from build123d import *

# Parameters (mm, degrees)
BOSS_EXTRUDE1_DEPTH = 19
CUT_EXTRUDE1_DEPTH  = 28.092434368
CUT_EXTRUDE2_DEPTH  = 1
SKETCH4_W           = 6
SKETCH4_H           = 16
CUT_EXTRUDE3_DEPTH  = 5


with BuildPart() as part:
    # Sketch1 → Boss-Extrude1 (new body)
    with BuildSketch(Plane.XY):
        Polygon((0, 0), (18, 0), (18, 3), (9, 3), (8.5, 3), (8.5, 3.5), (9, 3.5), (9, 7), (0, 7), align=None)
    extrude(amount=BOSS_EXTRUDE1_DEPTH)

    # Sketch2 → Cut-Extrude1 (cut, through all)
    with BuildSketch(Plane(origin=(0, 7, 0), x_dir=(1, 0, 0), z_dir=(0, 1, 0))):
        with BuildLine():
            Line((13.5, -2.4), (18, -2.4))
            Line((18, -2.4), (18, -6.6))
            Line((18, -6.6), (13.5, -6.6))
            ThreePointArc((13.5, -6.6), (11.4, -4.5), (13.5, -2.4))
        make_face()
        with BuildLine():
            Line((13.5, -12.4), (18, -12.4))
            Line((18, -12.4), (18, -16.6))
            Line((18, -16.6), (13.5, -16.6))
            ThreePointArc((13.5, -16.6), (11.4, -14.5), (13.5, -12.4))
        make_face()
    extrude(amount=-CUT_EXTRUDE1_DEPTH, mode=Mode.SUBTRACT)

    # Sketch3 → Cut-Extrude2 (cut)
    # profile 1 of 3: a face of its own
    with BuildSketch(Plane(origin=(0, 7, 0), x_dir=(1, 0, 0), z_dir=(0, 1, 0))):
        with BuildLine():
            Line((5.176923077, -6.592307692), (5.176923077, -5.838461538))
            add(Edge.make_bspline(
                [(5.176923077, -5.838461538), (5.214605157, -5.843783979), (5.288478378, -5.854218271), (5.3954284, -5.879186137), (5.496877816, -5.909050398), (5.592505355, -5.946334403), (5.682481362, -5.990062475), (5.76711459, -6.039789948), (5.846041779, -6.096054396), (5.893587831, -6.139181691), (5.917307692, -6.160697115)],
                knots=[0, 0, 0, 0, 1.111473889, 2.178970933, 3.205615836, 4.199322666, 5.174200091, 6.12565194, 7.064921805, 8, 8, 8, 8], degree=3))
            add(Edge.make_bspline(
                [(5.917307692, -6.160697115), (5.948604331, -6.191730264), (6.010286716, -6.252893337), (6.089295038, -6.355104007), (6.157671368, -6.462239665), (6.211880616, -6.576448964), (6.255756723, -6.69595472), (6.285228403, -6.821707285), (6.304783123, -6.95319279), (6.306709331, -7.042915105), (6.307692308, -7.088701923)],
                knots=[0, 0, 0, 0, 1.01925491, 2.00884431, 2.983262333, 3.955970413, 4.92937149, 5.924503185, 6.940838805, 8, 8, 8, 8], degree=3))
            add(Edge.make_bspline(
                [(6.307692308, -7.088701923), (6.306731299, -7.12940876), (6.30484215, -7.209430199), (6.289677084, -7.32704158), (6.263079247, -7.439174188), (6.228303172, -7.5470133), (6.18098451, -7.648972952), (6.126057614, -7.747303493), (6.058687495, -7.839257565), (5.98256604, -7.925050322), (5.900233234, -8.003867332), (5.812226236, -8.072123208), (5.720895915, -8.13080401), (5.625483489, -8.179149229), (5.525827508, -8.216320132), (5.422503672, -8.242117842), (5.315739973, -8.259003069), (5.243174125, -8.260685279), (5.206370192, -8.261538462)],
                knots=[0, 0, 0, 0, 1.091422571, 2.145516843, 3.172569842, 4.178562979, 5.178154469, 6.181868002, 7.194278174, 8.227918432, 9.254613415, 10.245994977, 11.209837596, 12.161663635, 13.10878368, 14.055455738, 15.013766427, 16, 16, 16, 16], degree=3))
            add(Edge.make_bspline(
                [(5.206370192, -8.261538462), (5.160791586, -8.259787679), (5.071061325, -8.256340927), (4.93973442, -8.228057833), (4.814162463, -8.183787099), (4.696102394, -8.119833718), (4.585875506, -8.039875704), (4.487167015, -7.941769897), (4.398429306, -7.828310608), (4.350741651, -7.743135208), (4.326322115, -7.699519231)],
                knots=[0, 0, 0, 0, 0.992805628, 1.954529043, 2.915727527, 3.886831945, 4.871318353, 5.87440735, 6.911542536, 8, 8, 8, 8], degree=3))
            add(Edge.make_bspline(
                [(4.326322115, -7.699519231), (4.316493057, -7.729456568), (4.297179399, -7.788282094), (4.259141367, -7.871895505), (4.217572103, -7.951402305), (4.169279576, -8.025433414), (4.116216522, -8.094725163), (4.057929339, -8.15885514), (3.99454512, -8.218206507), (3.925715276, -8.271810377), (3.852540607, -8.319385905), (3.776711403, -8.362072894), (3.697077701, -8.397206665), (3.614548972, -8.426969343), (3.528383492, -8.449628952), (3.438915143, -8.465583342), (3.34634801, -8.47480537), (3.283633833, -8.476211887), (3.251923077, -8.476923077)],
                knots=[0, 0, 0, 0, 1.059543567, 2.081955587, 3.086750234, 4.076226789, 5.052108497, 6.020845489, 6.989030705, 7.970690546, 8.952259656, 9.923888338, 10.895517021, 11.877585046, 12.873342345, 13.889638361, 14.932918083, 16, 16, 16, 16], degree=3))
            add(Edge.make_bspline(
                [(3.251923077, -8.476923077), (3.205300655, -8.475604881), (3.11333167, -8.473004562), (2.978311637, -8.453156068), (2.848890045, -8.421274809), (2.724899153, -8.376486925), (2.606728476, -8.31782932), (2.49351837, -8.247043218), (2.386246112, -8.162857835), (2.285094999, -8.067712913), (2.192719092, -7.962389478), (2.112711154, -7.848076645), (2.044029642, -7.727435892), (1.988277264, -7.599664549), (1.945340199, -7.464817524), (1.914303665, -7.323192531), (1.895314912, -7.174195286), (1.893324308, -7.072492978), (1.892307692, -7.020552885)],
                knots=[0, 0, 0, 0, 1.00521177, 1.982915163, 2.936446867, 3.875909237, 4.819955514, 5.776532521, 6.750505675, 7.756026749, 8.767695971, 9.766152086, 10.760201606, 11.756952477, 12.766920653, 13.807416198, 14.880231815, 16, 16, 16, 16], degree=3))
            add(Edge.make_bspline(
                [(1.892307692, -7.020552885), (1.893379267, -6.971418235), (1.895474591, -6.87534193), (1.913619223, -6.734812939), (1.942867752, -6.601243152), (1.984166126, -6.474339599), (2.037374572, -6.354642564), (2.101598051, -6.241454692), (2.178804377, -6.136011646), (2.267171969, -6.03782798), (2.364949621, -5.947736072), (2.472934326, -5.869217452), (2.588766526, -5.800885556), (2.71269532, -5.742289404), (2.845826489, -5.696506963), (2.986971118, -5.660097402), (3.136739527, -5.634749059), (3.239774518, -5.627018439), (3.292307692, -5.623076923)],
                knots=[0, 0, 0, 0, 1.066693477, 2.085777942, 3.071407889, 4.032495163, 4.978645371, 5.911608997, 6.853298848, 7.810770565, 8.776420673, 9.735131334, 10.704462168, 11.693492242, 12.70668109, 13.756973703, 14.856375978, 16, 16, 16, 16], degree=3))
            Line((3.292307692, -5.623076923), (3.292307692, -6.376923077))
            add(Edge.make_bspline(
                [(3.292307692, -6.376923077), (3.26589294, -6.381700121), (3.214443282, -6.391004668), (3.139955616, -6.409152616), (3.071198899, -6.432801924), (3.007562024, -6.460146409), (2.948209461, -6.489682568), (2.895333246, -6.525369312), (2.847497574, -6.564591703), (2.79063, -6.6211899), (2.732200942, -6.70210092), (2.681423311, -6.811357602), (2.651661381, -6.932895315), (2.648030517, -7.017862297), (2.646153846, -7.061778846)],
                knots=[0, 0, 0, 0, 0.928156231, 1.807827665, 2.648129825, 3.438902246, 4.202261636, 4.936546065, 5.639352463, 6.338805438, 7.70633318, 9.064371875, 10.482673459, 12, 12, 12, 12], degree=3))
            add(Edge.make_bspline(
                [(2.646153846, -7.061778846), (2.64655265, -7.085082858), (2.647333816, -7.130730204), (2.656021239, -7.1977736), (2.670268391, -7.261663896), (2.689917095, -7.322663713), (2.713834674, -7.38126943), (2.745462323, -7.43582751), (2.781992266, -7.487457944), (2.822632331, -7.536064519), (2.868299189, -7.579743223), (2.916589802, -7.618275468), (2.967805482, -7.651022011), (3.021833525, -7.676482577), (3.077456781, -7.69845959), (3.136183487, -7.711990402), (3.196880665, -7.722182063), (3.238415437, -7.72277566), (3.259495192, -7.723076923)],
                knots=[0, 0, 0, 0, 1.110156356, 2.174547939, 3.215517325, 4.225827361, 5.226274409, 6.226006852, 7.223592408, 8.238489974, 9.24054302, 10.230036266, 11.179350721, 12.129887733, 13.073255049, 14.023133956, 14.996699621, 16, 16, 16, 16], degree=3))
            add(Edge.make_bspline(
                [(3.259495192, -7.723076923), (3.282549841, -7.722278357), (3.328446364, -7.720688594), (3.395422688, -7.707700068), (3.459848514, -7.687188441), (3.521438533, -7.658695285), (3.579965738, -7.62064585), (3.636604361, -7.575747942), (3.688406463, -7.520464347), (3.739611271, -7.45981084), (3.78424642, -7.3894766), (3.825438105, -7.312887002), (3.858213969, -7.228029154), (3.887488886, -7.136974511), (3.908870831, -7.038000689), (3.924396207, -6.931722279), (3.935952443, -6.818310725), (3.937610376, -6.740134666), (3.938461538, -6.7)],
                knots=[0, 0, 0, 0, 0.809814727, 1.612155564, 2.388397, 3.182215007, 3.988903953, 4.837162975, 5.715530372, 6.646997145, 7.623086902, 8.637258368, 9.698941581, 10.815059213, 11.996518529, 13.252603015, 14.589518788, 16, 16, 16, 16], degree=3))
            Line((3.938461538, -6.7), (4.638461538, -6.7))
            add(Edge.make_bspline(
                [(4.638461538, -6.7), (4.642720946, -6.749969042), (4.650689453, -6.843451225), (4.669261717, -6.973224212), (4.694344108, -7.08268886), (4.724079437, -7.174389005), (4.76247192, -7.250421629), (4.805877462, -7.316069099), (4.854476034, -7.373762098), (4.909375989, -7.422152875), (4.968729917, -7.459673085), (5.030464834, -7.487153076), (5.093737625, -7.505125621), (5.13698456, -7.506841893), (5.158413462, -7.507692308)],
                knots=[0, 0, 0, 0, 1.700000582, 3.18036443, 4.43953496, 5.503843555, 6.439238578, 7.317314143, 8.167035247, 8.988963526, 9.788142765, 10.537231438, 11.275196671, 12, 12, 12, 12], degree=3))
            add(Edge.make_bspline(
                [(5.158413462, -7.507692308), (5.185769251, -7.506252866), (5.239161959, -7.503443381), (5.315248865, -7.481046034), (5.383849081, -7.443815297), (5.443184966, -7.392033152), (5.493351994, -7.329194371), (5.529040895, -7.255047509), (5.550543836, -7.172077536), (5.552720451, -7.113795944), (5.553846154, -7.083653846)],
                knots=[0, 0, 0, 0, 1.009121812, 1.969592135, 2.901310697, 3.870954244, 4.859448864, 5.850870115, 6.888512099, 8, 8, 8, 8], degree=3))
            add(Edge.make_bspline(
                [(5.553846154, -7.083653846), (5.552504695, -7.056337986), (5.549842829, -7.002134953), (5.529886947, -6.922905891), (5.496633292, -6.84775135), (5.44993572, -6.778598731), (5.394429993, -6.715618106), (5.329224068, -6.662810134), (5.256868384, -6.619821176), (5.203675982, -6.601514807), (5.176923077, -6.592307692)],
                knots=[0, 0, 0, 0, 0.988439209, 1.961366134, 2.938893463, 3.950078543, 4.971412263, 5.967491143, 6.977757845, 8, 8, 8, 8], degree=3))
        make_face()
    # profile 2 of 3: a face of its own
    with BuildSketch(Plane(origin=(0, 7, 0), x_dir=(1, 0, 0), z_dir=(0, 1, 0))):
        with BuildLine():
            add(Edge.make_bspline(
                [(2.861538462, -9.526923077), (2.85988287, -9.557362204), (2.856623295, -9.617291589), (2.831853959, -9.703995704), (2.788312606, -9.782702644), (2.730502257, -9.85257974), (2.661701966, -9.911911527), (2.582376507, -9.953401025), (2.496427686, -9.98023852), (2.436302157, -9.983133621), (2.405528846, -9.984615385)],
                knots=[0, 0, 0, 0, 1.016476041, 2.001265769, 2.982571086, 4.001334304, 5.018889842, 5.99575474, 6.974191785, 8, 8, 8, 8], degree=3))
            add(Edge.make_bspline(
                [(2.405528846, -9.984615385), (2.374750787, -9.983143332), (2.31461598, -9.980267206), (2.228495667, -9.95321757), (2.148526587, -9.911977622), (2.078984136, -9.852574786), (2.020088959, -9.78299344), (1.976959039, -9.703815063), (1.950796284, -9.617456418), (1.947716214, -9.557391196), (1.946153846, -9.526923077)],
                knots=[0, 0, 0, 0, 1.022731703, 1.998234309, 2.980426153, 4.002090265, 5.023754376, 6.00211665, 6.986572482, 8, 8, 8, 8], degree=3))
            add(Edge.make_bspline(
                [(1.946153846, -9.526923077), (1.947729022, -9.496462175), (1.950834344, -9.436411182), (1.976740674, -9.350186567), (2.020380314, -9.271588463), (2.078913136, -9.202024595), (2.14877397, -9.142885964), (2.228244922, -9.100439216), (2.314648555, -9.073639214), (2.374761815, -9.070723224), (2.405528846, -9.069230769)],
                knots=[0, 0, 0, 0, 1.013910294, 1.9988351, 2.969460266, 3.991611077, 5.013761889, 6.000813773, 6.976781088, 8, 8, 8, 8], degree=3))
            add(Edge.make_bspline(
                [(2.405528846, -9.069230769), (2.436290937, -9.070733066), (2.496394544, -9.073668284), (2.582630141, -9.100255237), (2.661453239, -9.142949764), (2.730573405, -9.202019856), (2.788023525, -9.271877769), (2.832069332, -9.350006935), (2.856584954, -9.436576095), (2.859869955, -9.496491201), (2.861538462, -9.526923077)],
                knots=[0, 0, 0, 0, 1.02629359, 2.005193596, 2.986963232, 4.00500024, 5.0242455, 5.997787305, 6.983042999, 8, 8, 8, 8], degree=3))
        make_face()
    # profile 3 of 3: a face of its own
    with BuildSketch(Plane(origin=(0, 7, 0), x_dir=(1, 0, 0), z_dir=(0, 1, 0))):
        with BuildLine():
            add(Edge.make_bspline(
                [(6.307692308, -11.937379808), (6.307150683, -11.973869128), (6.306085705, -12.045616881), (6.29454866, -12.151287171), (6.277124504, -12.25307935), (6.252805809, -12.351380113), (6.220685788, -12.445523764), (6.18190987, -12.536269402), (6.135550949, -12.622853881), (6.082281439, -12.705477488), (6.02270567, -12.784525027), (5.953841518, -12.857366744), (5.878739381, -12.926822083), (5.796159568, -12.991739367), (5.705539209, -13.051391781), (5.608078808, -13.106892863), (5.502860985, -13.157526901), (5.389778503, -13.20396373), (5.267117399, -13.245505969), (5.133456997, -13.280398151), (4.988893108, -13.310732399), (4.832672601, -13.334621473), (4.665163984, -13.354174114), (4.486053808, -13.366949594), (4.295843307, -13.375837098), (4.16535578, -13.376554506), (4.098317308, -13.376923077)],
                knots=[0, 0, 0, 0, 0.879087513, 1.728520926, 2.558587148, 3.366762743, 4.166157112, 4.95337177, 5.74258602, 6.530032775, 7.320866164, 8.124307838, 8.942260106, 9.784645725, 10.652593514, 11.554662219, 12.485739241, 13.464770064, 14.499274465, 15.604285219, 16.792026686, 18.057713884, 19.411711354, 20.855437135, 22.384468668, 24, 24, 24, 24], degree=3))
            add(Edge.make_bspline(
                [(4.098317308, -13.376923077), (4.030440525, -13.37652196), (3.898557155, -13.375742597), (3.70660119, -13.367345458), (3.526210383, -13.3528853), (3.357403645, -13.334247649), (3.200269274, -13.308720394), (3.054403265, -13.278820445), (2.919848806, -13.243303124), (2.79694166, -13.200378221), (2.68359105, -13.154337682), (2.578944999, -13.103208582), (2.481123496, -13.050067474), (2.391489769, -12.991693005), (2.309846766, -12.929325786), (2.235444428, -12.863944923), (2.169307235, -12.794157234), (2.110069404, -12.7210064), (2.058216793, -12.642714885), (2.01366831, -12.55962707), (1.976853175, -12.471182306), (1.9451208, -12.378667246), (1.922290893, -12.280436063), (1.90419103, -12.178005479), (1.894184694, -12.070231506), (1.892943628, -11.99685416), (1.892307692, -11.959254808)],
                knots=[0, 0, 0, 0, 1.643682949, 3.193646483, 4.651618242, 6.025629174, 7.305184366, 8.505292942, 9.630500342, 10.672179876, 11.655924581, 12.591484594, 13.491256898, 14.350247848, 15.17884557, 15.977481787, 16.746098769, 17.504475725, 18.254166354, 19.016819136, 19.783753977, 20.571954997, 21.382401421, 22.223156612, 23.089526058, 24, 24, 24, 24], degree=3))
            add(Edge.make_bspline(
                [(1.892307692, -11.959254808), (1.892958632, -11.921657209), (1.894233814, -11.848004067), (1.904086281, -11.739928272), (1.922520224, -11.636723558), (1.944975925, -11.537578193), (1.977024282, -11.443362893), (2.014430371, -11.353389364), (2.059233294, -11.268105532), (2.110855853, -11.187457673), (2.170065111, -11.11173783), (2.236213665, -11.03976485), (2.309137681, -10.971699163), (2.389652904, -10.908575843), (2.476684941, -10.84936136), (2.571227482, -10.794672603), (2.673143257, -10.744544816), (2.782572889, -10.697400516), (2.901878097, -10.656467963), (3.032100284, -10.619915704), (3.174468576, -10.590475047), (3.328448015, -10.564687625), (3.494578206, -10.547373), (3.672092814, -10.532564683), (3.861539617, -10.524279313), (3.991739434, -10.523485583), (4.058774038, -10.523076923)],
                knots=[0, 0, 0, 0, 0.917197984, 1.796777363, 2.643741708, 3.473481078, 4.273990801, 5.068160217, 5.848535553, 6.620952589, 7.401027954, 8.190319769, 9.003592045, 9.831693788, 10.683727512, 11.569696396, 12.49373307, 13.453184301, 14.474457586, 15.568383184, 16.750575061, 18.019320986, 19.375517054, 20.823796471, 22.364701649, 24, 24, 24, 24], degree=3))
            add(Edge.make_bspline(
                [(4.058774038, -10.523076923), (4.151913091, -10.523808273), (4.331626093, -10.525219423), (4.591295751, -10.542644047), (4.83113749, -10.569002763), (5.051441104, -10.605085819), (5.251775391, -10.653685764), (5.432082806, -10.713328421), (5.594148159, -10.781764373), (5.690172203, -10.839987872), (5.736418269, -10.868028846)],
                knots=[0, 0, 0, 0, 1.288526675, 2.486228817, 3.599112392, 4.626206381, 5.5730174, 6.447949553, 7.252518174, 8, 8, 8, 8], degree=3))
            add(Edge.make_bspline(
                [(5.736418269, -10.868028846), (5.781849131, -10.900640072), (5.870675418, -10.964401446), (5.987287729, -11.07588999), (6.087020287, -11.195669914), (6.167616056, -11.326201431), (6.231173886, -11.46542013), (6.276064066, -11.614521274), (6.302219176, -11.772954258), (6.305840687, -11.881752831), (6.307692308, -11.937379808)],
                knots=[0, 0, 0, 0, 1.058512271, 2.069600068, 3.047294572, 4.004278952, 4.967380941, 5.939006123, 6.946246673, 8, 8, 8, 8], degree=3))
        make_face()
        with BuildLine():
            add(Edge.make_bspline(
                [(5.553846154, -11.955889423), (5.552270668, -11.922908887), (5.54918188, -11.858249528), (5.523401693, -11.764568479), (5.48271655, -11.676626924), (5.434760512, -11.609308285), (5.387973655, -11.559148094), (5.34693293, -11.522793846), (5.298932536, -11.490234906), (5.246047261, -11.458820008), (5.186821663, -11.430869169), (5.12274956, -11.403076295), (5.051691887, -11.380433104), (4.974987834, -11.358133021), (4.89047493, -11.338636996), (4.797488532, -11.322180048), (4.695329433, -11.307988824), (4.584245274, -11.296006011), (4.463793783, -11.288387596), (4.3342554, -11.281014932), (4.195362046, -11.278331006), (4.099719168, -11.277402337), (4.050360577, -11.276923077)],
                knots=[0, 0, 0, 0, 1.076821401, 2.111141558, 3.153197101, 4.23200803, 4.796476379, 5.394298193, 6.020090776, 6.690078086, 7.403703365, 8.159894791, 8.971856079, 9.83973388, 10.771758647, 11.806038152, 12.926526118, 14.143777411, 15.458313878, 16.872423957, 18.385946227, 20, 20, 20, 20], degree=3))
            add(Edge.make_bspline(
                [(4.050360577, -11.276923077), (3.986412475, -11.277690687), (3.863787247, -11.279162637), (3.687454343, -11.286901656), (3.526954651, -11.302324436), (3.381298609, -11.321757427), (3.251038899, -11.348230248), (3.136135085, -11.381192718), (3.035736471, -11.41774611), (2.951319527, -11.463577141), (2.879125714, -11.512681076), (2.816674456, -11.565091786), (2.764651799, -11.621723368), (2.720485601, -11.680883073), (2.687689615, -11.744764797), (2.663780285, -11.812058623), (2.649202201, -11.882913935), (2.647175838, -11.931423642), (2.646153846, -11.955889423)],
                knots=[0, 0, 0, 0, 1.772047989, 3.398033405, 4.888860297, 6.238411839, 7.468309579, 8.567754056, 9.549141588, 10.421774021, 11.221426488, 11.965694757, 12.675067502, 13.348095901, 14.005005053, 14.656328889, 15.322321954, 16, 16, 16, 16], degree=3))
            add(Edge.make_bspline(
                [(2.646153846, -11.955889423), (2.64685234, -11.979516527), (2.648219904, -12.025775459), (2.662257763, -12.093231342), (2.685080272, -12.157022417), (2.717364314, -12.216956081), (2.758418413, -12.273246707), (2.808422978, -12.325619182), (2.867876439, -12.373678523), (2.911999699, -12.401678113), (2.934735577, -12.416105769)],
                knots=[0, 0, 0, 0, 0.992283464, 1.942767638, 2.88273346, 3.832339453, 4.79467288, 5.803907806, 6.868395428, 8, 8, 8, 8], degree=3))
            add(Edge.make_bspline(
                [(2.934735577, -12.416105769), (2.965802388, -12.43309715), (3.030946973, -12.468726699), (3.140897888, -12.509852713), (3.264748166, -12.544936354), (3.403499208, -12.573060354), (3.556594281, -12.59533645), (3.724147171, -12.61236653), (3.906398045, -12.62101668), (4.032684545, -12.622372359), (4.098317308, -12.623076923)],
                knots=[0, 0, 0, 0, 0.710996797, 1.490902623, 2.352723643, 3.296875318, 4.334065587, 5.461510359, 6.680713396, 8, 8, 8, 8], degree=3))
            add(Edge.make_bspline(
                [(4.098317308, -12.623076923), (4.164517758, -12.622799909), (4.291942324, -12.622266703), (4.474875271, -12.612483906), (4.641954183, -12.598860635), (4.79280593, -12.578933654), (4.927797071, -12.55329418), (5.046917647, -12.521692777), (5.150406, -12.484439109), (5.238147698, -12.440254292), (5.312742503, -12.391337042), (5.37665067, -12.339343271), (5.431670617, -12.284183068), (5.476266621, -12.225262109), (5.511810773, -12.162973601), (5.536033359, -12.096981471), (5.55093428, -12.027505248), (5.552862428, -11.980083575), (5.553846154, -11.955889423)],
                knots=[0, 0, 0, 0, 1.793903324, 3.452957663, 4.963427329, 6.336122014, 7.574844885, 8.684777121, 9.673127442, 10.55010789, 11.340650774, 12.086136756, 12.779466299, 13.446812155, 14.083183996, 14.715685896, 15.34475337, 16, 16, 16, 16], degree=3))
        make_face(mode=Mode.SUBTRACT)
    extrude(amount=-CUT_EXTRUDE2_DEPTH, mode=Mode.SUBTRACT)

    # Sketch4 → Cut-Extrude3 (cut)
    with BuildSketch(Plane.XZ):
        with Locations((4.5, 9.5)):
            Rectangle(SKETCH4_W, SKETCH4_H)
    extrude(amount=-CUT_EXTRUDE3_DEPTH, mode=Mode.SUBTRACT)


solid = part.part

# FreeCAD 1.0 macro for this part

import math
import FreeCAD as App
import Part
import Sketcher

V = App.Vector
Q = App.Units.Quantity


def add_polygon(sketch, points):
    """Adds a closed chain of lines whose ends are joined by coincident constraints."""
    first, n = sketch.GeometryCount, len(points)
    for a, b in zip(points, points[1:] + points[:1]):
        sketch.addGeometry(Part.LineSegment(App.Vector(*a, 0), App.Vector(*b, 0)), False)
    for i in range(n):
        sketch.addConstraint(Sketcher.Constraint("Coincident", first + i, 2, first + (i + 1) % n, 1))

doc = App.newDocument("Part")
params = doc.addObject("Spreadsheet::Sheet", "Params")
for row, (alias, value) in enumerate([
    ("sketch1_width", "18 mm"),
    ("sketch1_width2", "9 mm"),
    ("sketch1_height", "3 mm"),
    ("sketch1_height2", "7 mm"),
    ("sketch1_width3", "9.5 mm"),
    ("pad1_length", "19 mm"),
    ("sketch2_radius", "2.1 mm"),
    ("sketch2_width", "4.5 mm"),
    ("pocket2_length", "1 mm"),
    ("sketch4_width", "6 mm"),
    ("sketch4_height", "16 mm"),
    ("pocket3_length", "5 mm"),
], start=1):
    params.set(f"A{row}", alias)
    params.set(f"B{row}", "=" + value)
    params.setAlias(f"B{row}", alias)

body = doc.addObject("PartDesign::Body", "Body")

# Sketch on XY plane
sketch1 = body.newObject("Sketcher::SketchObject", "Sketch")
sketch1.AttachmentSupport = (doc.getObject("XY_Plane"), [""])
sketch1.MapMode = "FlatFace"
add_polygon(sketch1, [(0, 0), (18, 0), (18, 3), (8.5, 3), (8.5, 3.5), (9, 3.5), (9, 7), (0, 7)])  # lines 0-7
sketch1.addConstraint(Sketcher.Constraint("Horizontal", 0))
sketch1.addConstraint(Sketcher.Constraint("Vertical", 1))
sketch1.addConstraint(Sketcher.Constraint("Horizontal", 2))
sketch1.addConstraint(Sketcher.Constraint("Vertical", 3))
sketch1.addConstraint(Sketcher.Constraint("Horizontal", 4))
sketch1.addConstraint(Sketcher.Constraint("Vertical", 5))
sketch1.addConstraint(Sketcher.Constraint("Horizontal", 6))
sketch1.addConstraint(Sketcher.Constraint("Vertical", 7))
sketch1.addConstraint(Sketcher.Constraint("Coincident", 7, 2, -1, 1))
sketch1.addConstraint(Sketcher.Constraint("Equal", 4, 3))
sketch1.addConstraint(Sketcher.Constraint("DistanceX", 0, 1, 0, 2, Q("18 mm")))
sketch1.addConstraint(Sketcher.Constraint("DistanceX", 6, 2, 6, 1, Q("9 mm")))
sketch1.addConstraint(Sketcher.Constraint("DistanceY", 1, 1, 1, 2, Q("3 mm")))
sketch1.addConstraint(Sketcher.Constraint("DistanceY", 7, 2, 7, 1, Q("7 mm")))
sketch1.addConstraint(Sketcher.Constraint("DistanceX", 2, 2, 2, 1, Q("9.5 mm")))
sketch1.setExpression("Constraints[18]", "Params.sketch1_width")
sketch1.setExpression("Constraints[19]", "Params.sketch1_width2")
sketch1.setExpression("Constraints[20]", "Params.sketch1_height")
sketch1.setExpression("Constraints[21]", "Params.sketch1_height2")
sketch1.setExpression("Constraints[22]", "Params.sketch1_width3")
pad1 = body.newObject("PartDesign::Pad", "Pad")
pad1.Profile = sketch1
pad1.setExpression("Length", "Params.pad1_length")

# Sketch on XZ plane
sketch2 = body.newObject("Sketcher::SketchObject", "Sketch001")
sketch2.AttachmentSupport = (doc.getObject("XZ_Plane"), [""])
sketch2.MapMode = "FlatFace"
sketch2.AttachmentOffset = App.Placement(V(0, 0, -7), App.Rotation())
sketch2.addGeometry(Part.LineSegment(V(18, 2.4, 0), V(13.5, 2.4, 0)), False)
sketch2.addGeometry(Part.ArcOfCircle(Part.Circle(V(13.5, 4.5, 0), V(0, 0, 1), 2.1), math.radians(90), math.radians(270)), False)
sketch2.addGeometry(Part.LineSegment(V(13.5, 6.6, 0), V(18, 6.6, 0)), False)
sketch2.addGeometry(Part.LineSegment(V(18, 6.6, 0), V(18, 2.4, 0)), False)
sketch2.addGeometry(Part.LineSegment(V(18, 12.4, 0), V(13.5, 12.4, 0)), False)
sketch2.addGeometry(Part.ArcOfCircle(Part.Circle(V(13.5, 14.5, 0), V(0, 0, 1), 2.1), math.radians(90), math.radians(270)), False)
sketch2.addGeometry(Part.LineSegment(V(13.5, 16.6, 0), V(18, 16.6, 0)), False)
sketch2.addGeometry(Part.LineSegment(V(18, 16.6, 0), V(18, 12.4, 0)), False)
sketch2.addConstraint(Sketcher.Constraint("Tangent", 0, 2, 1, 2))
sketch2.addConstraint(Sketcher.Constraint("Tangent", 1, 1, 2, 1))
sketch2.addConstraint(Sketcher.Constraint("Coincident", 2, 2, 3, 1))
sketch2.addConstraint(Sketcher.Constraint("Coincident", 3, 2, 0, 1))
sketch2.addConstraint(Sketcher.Constraint("Tangent", 4, 2, 5, 2))
sketch2.addConstraint(Sketcher.Constraint("Tangent", 5, 1, 6, 1))
sketch2.addConstraint(Sketcher.Constraint("Coincident", 6, 2, 7, 1))
sketch2.addConstraint(Sketcher.Constraint("Coincident", 7, 2, 4, 1))
sketch2.addConstraint(Sketcher.Constraint("Horizontal", 0))
sketch2.addConstraint(Sketcher.Constraint("Horizontal", 2))
sketch2.addConstraint(Sketcher.Constraint("Vertical", 3))
sketch2.addConstraint(Sketcher.Constraint("Horizontal", 4))
sketch2.addConstraint(Sketcher.Constraint("Horizontal", 6))
sketch2.addConstraint(Sketcher.Constraint("Vertical", 7))
sketch2.addConstraint(Sketcher.Constraint("Equal", 1, 5))
sketch2.addConstraint(Sketcher.Constraint("Vertical", 1, 3, 5, 3))
sketch2.addConstraint(Sketcher.Constraint("Vertical", 3, 2, 6, 2))
sketch2.addConstraint(Sketcher.Constraint("Radius", 1, Q("2.1 mm")))
sketch2.addConstraint(Sketcher.Constraint("DistanceX", 0, 2, 0, 1, Q("4.5 mm")))
sketch2.addConstraint(Sketcher.Constraint("DistanceX", -1, 1, 2, 2, Q("18 mm")))
sketch2.addConstraint(Sketcher.Constraint("DistanceY", 1, 3, 5, 3, Q("10 mm")))
sketch2.addConstraint(Sketcher.Constraint("DistanceY", -1, 1, 1, 3, Q("4.5 mm")))
sketch2.setExpression("Constraints[17]", "Params.sketch2_radius")
sketch2.setExpression("Constraints[18]", "Params.sketch2_width")
pocket1 = body.newObject("PartDesign::Pocket", "Pocket")
pocket1.Profile = sketch2
pocket1.Type = "ThroughAll"
pocket1.Reversed = True

# Sketch on XZ plane
sketch3 = body.newObject("Sketcher::SketchObject", "Sketch002")
sketch3.AttachmentSupport = (doc.getObject("XZ_Plane"), [""])
sketch3.MapMode = "FlatFace"
sketch3.AttachmentOffset = App.Placement(V(0, 0, -7), App.Rotation())
sketch3.addGeometry(Part.LineSegment(V(5.176923, 5.838462, 0), V(5.176923, 6.592308, 0)), False)
sketch3.addGeometry(Part.BSplineCurve([V(5.553846, 7.083654, 0), V(5.552505, 7.056338, 0), V(5.549843, 7.002135, 0), V(5.529887, 6.922906, 0), V(5.496633, 6.847751, 0), V(5.449936, 6.778599, 0), V(5.39443, 6.715618, 0), V(5.329224, 6.66281, 0), V(5.256868, 6.619821, 0), V(5.203676, 6.601515, 0), V(5.176923, 6.592308, 0)], [4, 1, 1, 1, 1, 1, 1, 1, 4], [0, 0.988439209, 1.961366134, 2.938893463, 3.950078543, 4.971412263, 5.967491143, 6.977757845, 8], False, 3, [1, 1, 1, 1, 1, 1, 1, 1, 1, 1, 1], False), False)
sketch3.addGeometry(Part.BSplineCurve([V(5.158413, 7.507692, 0), V(5.185769, 7.506253, 0), V(5.239162, 7.503443, 0), V(5.315249, 7.481046, 0), V(5.383849, 7.443815, 0), V(5.443185, 7.392033, 0), V(5.493352, 7.329194, 0), V(5.529041, 7.255048, 0), V(5.550544, 7.172078, 0), V(5.55272, 7.113796, 0), V(5.553846, 7.083654, 0)], [4, 1, 1, 1, 1, 1, 1, 1, 4], [0, 1.009121812, 1.969592135, 2.901310697, 3.870954244, 4.859448864, 5.850870115, 6.888512099, 8], False, 3, [1, 1, 1, 1, 1, 1, 1, 1, 1, 1, 1], False), False)
sketch3.addGeometry(Part.BSplineCurve([V(4.638462, 6.7, 0), V(4.642721, 6.749969, 0), V(4.650689, 6.843451, 0), V(4.669262, 6.973224, 0), V(4.694344, 7.082689, 0), V(4.724079, 7.174389, 0), V(4.762472, 7.250422, 0), V(4.805877, 7.316069, 0), V(4.854476, 7.373762, 0), V(4.909376, 7.422153, 0), V(4.96873, 7.459673, 0), V(5.030465, 7.487153, 0), V(5.093738, 7.505126, 0), V(5.136985, 7.506842, 0), V(5.158413, 7.507692, 0)], [4, 1, 1, 1, 1, 1, 1, 1, 1, 1, 1, 1, 4], [0, 1.700000582, 3.18036443, 4.43953496, 5.503843555, 6.439238578, 7.317314143, 8.167035247, 8.988963526, 9.788142765, 10.537231438, 11.275196671, 12], False, 3, [1, 1, 1, 1, 1, 1, 1, 1, 1, 1, 1, 1, 1, 1, 1], False), False)
sketch3.addGeometry(Part.LineSegment(V(4.638462, 6.7, 0), V(3.938462, 6.7, 0)), False)
sketch3.addGeometry(Part.BSplineCurve([V(3.259495, 7.723077, 0), V(3.28255, 7.722278, 0), V(3.328446, 7.720689, 0), V(3.395423, 7.7077, 0), V(3.459849, 7.687188, 0), V(3.521439, 7.658695, 0), V(3.579966, 7.620646, 0), V(3.636604, 7.575748, 0), V(3.688406, 7.520464, 0), V(3.739611, 7.459811, 0), V(3.784246, 7.389477, 0), V(3.825438, 7.312887, 0), V(3.858214, 7.228029, 0), V(3.887489, 7.136975, 0), V(3.908871, 7.038001, 0), V(3.924396, 6.931722, 0), V(3.935952, 6.818311, 0), V(3.93761, 6.740135, 0), V(3.938462, 6.7, 0)], [4, 1, 1, 1, 1, 1, 1, 1, 1, 1, 1, 1, 1, 1, 1, 1, 4], [0, 0.809814727, 1.612155564, 2.388397, 3.182215007, 3.988903953, 4.837162975, 5.715530372, 6.646997145, 7.623086902, 8.637258368, 9.698941581, 10.815059213, 11.996518529, 13.252603015, 14.589518788, 16], False, 3, [1, 1, 1, 1, 1, 1, 1, 1, 1, 1, 1, 1, 1, 1, 1, 1, 1, 1, 1], False), False)
sketch3.addGeometry(Part.BSplineCurve([V(2.646154, 7.061779, 0), V(2.646553, 7.085083, 0), V(2.647334, 7.13073, 0), V(2.656021, 7.197774, 0), V(2.670268, 7.261664, 0), V(2.689917, 7.322664, 0), V(2.713835, 7.381269, 0), V(2.745462, 7.435828, 0), V(2.781992, 7.487458, 0), V(2.822632, 7.536065, 0), V(2.868299, 7.579743, 0), V(2.91659, 7.618275, 0), V(2.967805, 7.651022, 0), V(3.021834, 7.676483, 0), V(3.077457, 7.69846, 0), V(3.136183, 7.71199, 0), V(3.196881, 7.722182, 0), V(3.238415, 7.722776, 0), V(3.259495, 7.723077, 0)], [4, 1, 1, 1, 1, 1, 1, 1, 1, 1, 1, 1, 1, 1, 1, 1, 4], [0, 1.110156356, 2.174547939, 3.215517325, 4.225827361, 5.226274409, 6.226006852, 7.223592408, 8.238489974, 9.24054302, 10.230036266, 11.179350721, 12.129887733, 13.073255049, 14.023133956, 14.996699621, 16], False, 3, [1, 1, 1, 1, 1, 1, 1, 1, 1, 1, 1, 1, 1, 1, 1, 1, 1, 1, 1], False), False)
sketch3.addGeometry(Part.BSplineCurve([V(3.292308, 6.376923, 0), V(3.265893, 6.3817, 0), V(3.214443, 6.391005, 0), V(3.139956, 6.409153, 0), V(3.071199, 6.432802, 0), V(3.007562, 6.460146, 0), V(2.948209, 6.489683, 0), V(2.895333, 6.525369, 0), V(2.847498, 6.564592, 0), V(2.79063, 6.62119, 0), V(2.732201, 6.702101, 0), V(2.681423, 6.811358, 0), V(2.651661, 6.932895, 0), V(2.648031, 7.017862, 0), V(2.646154, 7.061779, 0)], [4, 1, 1, 1, 1, 1, 1, 1, 1, 1, 1, 1, 4], [0, 0.928156231, 1.807827665, 2.648129825, 3.438902246, 4.202261636, 4.936546065, 5.639352463, 6.338805438, 7.70633318, 9.064371875, 10.482673459, 12], False, 3, [1, 1, 1, 1, 1, 1, 1, 1, 1, 1, 1, 1, 1, 1, 1], False), False)
sketch3.addGeometry(Part.LineSegment(V(3.292308, 6.376923, 0), V(3.292308, 5.623077, 0)), False)
sketch3.addGeometry(Part.BSplineCurve([V(1.892308, 7.020553, 0), V(1.893379, 6.971418, 0), V(1.895475, 6.875342, 0), V(1.913619, 6.734813, 0), V(1.942868, 6.601243, 0), V(1.984166, 6.47434, 0), V(2.037375, 6.354643, 0), V(2.101598, 6.241455, 0), V(2.178804, 6.136012, 0), V(2.267172, 6.037828, 0), V(2.36495, 5.947736, 0), V(2.472934, 5.869217, 0), V(2.588767, 5.800886, 0), V(2.712695, 5.742289, 0), V(2.845826, 5.696507, 0), V(2.986971, 5.660097, 0), V(3.13674, 5.634749, 0), V(3.239775, 5.627018, 0), V(3.292308, 5.623077, 0)], [4, 1, 1, 1, 1, 1, 1, 1, 1, 1, 1, 1, 1, 1, 1, 1, 4], [0, 1.066693477, 2.085777942, 3.071407889, 4.032495163, 4.978645371, 5.911608997, 6.853298848, 7.810770565, 8.776420673, 9.735131334, 10.704462168, 11.693492242, 12.70668109, 13.756973703, 14.856375978, 16], False, 3, [1, 1, 1, 1, 1, 1, 1, 1, 1, 1, 1, 1, 1, 1, 1, 1, 1, 1, 1], False), False)
sketch3.addGeometry(Part.BSplineCurve([V(3.251923, 8.476923, 0), V(3.205301, 8.475605, 0), V(3.113332, 8.473005, 0), V(2.978312, 8.453156, 0), V(2.84889, 8.421275, 0), V(2.724899, 8.376487, 0), V(2.606728, 8.317829, 0), V(2.493518, 8.247043, 0), V(2.386246, 8.162858, 0), V(2.285095, 8.067713, 0), V(2.192719, 7.962389, 0), V(2.112711, 7.848077, 0), V(2.04403, 7.727436, 0), V(1.988277, 7.599665, 0), V(1.94534, 7.464818, 0), V(1.914304, 7.323193, 0), V(1.895315, 7.174195, 0), V(1.893324, 7.072493, 0), V(1.892308, 7.020553, 0)], [4, 1, 1, 1, 1, 1, 1, 1, 1, 1, 1, 1, 1, 1, 1, 1, 4], [0, 1.00521177, 1.982915163, 2.936446867, 3.875909237, 4.819955514, 5.776532521, 6.750505675, 7.756026749, 8.767695971, 9.766152086, 10.760201606, 11.756952477, 12.766920653, 13.807416198, 14.880231815, 16], False, 3, [1, 1, 1, 1, 1, 1, 1, 1, 1, 1, 1, 1, 1, 1, 1, 1, 1, 1, 1], False), False)
sketch3.addGeometry(Part.BSplineCurve([V(4.326322, 7.699519, 0), V(4.316493, 7.729457, 0), V(4.297179, 7.788282, 0), V(4.259141, 7.871896, 0), V(4.217572, 7.951402, 0), V(4.16928, 8.025433, 0), V(4.116217, 8.094725, 0), V(4.057929, 8.158855, 0), V(3.994545, 8.218207, 0), V(3.925715, 8.27181, 0), V(3.852541, 8.319386, 0), V(3.776711, 8.362073, 0), V(3.697078, 8.397207, 0), V(3.614549, 8.426969, 0), V(3.528383, 8.449629, 0), V(3.438915, 8.465583, 0), V(3.346348, 8.474805, 0), V(3.283634, 8.476212, 0), V(3.251923, 8.476923, 0)], [4, 1, 1, 1, 1, 1, 1, 1, 1, 1, 1, 1, 1, 1, 1, 1, 4], [0, 1.059543567, 2.081955587, 3.086750234, 4.076226789, 5.052108497, 6.020845489, 6.989030705, 7.970690546, 8.952259656, 9.923888338, 10.895517021, 11.877585046, 12.873342345, 13.889638361, 14.932918083, 16], False, 3, [1, 1, 1, 1, 1, 1, 1, 1, 1, 1, 1, 1, 1, 1, 1, 1, 1, 1, 1], False), False)
sketch3.addGeometry(Part.BSplineCurve([V(5.20637, 8.261538, 0), V(5.160792, 8.259788, 0), V(5.071061, 8.256341, 0), V(4.939734, 8.228058, 0), V(4.814162, 8.183787, 0), V(4.696102, 8.119834, 0), V(4.585876, 8.039876, 0), V(4.487167, 7.94177, 0), V(4.398429, 7.828311, 0), V(4.350742, 7.743135, 0), V(4.326322, 7.699519, 0)], [4, 1, 1, 1, 1, 1, 1, 1, 4], [0, 0.992805628, 1.954529043, 2.915727527, 3.886831945, 4.871318353, 5.87440735, 6.911542536, 8], False, 3, [1, 1, 1, 1, 1, 1, 1, 1, 1, 1, 1], False), False)
sketch3.addGeometry(Part.BSplineCurve([V(6.307692, 7.088702, 0), V(6.306731, 7.129409, 0), V(6.304842, 7.20943, 0), V(6.289677, 7.327042, 0), V(6.263079, 7.439174, 0), V(6.228303, 7.547013, 0), V(6.180985, 7.648973, 0), V(6.126058, 7.747303, 0), V(6.058687, 7.839258, 0), V(5.982566, 7.92505, 0), V(5.900233, 8.003867, 0), V(5.812226, 8.072123, 0), V(5.720896, 8.130804, 0), V(5.625483, 8.179149, 0), V(5.525828, 8.21632, 0), V(5.422504, 8.242118, 0), V(5.31574, 8.259003, 0), V(5.243174, 8.260685, 0), V(5.20637, 8.261538, 0)], [4, 1, 1, 1, 1, 1, 1, 1, 1, 1, 1, 1, 1, 1, 1, 1, 4], [0, 1.091422571, 2.145516843, 3.172569842, 4.178562979, 5.178154469, 6.181868002, 7.194278174, 8.227918432, 9.254613415, 10.245994977, 11.209837596, 12.161663635, 13.10878368, 14.055455738, 15.013766427, 16], False, 3, [1, 1, 1, 1, 1, 1, 1, 1, 1, 1, 1, 1, 1, 1, 1, 1, 1, 1, 1], False), False)
sketch3.addGeometry(Part.BSplineCurve([V(5.917308, 6.160697, 0), V(5.948604, 6.19173, 0), V(6.010287, 6.252893, 0), V(6.089295, 6.355104, 0), V(6.157671, 6.46224, 0), V(6.211881, 6.576449, 0), V(6.255757, 6.695955, 0), V(6.285228, 6.821707, 0), V(6.304783, 6.953193, 0), V(6.306709, 7.042915, 0), V(6.307692, 7.088702, 0)], [4, 1, 1, 1, 1, 1, 1, 1, 4], [0, 1.01925491, 2.00884431, 2.983262333, 3.955970413, 4.92937149, 5.924503185, 6.940838805, 8], False, 3, [1, 1, 1, 1, 1, 1, 1, 1, 1, 1, 1], False), False)
sketch3.addGeometry(Part.BSplineCurve([V(5.176923, 5.838462, 0), V(5.214605, 5.843784, 0), V(5.288478, 5.854218, 0), V(5.395428, 5.879186, 0), V(5.496878, 5.90905, 0), V(5.592505, 5.946334, 0), V(5.682481, 5.990062, 0), V(5.767115, 6.03979, 0), V(5.846042, 6.096054, 0), V(5.893588, 6.139182, 0), V(5.917308, 6.160697, 0)], [4, 1, 1, 1, 1, 1, 1, 1, 4], [0, 1.111473889, 2.178970933, 3.205615836, 4.199322666, 5.174200091, 6.12565194, 7.064921805, 8], False, 3, [1, 1, 1, 1, 1, 1, 1, 1, 1, 1, 1], False), False)
sketch3.addGeometry(Part.BSplineCurve([V(2.861538, 9.526923, 0), V(2.859883, 9.557362, 0), V(2.856623, 9.617292, 0), V(2.831854, 9.703996, 0), V(2.788313, 9.782703, 0), V(2.730502, 9.85258, 0), V(2.661702, 9.911912, 0), V(2.582377, 9.953401, 0), V(2.496428, 9.980239, 0), V(2.436302, 9.983134, 0), V(2.405529, 9.984615, 0)], [4, 1, 1, 1, 1, 1, 1, 1, 4], [0, 1.016476041, 2.001265769, 2.982571086, 4.001334304, 5.018889842, 5.99575474, 6.974191785, 8], False, 3, [1, 1, 1, 1, 1, 1, 1, 1, 1, 1, 1], False), False)
sketch3.addGeometry(Part.BSplineCurve([V(2.405529, 9.069231, 0), V(2.436291, 9.070733, 0), V(2.496395, 9.073668, 0), V(2.58263, 9.100255, 0), V(2.661453, 9.14295, 0), V(2.730573, 9.20202, 0), V(2.788024, 9.271878, 0), V(2.832069, 9.350007, 0), V(2.856585, 9.436576, 0), V(2.85987, 9.496491, 0), V(2.861538, 9.526923, 0)], [4, 1, 1, 1, 1, 1, 1, 1, 4], [0, 1.02629359, 2.005193596, 2.986963232, 4.00500024, 5.0242455, 5.997787305, 6.983042999, 8], False, 3, [1, 1, 1, 1, 1, 1, 1, 1, 1, 1, 1], False), False)
sketch3.addGeometry(Part.BSplineCurve([V(1.946154, 9.526923, 0), V(1.947729, 9.496462, 0), V(1.950834, 9.436411, 0), V(1.976741, 9.350187, 0), V(2.02038, 9.271588, 0), V(2.078913, 9.202025, 0), V(2.148774, 9.142886, 0), V(2.228245, 9.100439, 0), V(2.314649, 9.073639, 0), V(2.374762, 9.070723, 0), V(2.405529, 9.069231, 0)], [4, 1, 1, 1, 1, 1, 1, 1, 4], [0, 1.013910294, 1.9988351, 2.969460266, 3.991611077, 5.013761889, 6.000813773, 6.976781088, 8], False, 3, [1, 1, 1, 1, 1, 1, 1, 1, 1, 1, 1], False), False)
sketch3.addGeometry(Part.BSplineCurve([V(2.405529, 9.984615, 0), V(2.374751, 9.983143, 0), V(2.314616, 9.980267, 0), V(2.228496, 9.953218, 0), V(2.148527, 9.911978, 0), V(2.078984, 9.852575, 0), V(2.020089, 9.782993, 0), V(1.976959, 9.703815, 0), V(1.950796, 9.617456, 0), V(1.947716, 9.557391, 0), V(1.946154, 9.526923, 0)], [4, 1, 1, 1, 1, 1, 1, 1, 4], [0, 1.022731703, 1.998234309, 2.980426153, 4.002090265, 5.023754376, 6.00211665, 6.986572482, 8], False, 3, [1, 1, 1, 1, 1, 1, 1, 1, 1, 1, 1], False), False)
sketch3.addGeometry(Part.BSplineCurve([V(6.307692, 11.93738, 0), V(6.307151, 11.973869, 0), V(6.306086, 12.045617, 0), V(6.294549, 12.151287, 0), V(6.277125, 12.253079, 0), V(6.252806, 12.35138, 0), V(6.220686, 12.445524, 0), V(6.18191, 12.536269, 0), V(6.135551, 12.622854, 0), V(6.082281, 12.705477, 0), V(6.022706, 12.784525, 0), V(5.953842, 12.857367, 0), V(5.878739, 12.926822, 0), V(5.79616, 12.991739, 0), V(5.705539, 13.051392, 0), V(5.608079, 13.106893, 0), V(5.502861, 13.157527, 0), V(5.389779, 13.203964, 0), V(5.267117, 13.245506, 0), V(5.133457, 13.280398, 0), V(4.988893, 13.310732, 0), V(4.832673, 13.334621, 0), V(4.665164, 13.354174, 0), V(4.486054, 13.36695, 0), V(4.295843, 13.375837, 0), V(4.165356, 13.376555, 0), V(4.098317, 13.376923, 0)], [4, 1, 1, 1, 1, 1, 1, 1, 1, 1, 1, 1, 1, 1, 1, 1, 1, 1, 1, 1, 1, 1, 1, 1, 4], [0, 0.879087513, 1.728520926, 2.558587148, 3.366762743, 4.166157112, 4.95337177, 5.74258602, 6.530032775, 7.320866164, 8.124307838, 8.942260106, 9.784645725, 10.652593514, 11.554662219, 12.485739241, 13.464770064, 14.499274465, 15.604285219, 16.792026686, 18.057713884, 19.411711354, 20.855437135, 22.384468668, 24], False, 3, [1, 1, 1, 1, 1, 1, 1, 1, 1, 1, 1, 1, 1, 1, 1, 1, 1, 1, 1, 1, 1, 1, 1, 1, 1, 1, 1], False), False)
sketch3.addGeometry(Part.BSplineCurve([V(5.736418, 10.868029, 0), V(5.781849, 10.90064, 0), V(5.870675, 10.964401, 0), V(5.987288, 11.07589, 0), V(6.08702, 11.19567, 0), V(6.167616, 11.326201, 0), V(6.231174, 11.46542, 0), V(6.276064, 11.614521, 0), V(6.302219, 11.772954, 0), V(6.305841, 11.881753, 0), V(6.307692, 11.93738, 0)], [4, 1, 1, 1, 1, 1, 1, 1, 4], [0, 1.058512271, 2.069600068, 3.047294572, 4.004278952, 4.967380941, 5.939006123, 6.946246673, 8], False, 3, [1, 1, 1, 1, 1, 1, 1, 1, 1, 1, 1], False), False)
sketch3.addGeometry(Part.BSplineCurve([V(4.058774, 10.523077, 0), V(4.151913, 10.523808, 0), V(4.331626, 10.525219, 0), V(4.591296, 10.542644, 0), V(4.831137, 10.569003, 0), V(5.051441, 10.605086, 0), V(5.251775, 10.653686, 0), V(5.432083, 10.713328, 0), V(5.594148, 10.781764, 0), V(5.690172, 10.839988, 0), V(5.736418, 10.868029, 0)], [4, 1, 1, 1, 1, 1, 1, 1, 4], [0, 1.288526675, 2.486228817, 3.599112392, 4.626206381, 5.5730174, 6.447949553, 7.252518174, 8], False, 3, [1, 1, 1, 1, 1, 1, 1, 1, 1, 1, 1], False), False)
sketch3.addGeometry(Part.BSplineCurve([V(1.892308, 11.959255, 0), V(1.892959, 11.921657, 0), V(1.894234, 11.848004, 0), V(1.904086, 11.739928, 0), V(1.92252, 11.636724, 0), V(1.944976, 11.537578, 0), V(1.977024, 11.443363, 0), V(2.01443, 11.353389, 0), V(2.059233, 11.268106, 0), V(2.110856, 11.187458, 0), V(2.170065, 11.111738, 0), V(2.236214, 11.039765, 0), V(2.309138, 10.971699, 0), V(2.389653, 10.908576, 0), V(2.476685, 10.849361, 0), V(2.571227, 10.794673, 0), V(2.673143, 10.744545, 0), V(2.782573, 10.697401, 0), V(2.901878, 10.656468, 0), V(3.0321, 10.619916, 0), V(3.174469, 10.590475, 0), V(3.328448, 10.564688, 0), V(3.494578, 10.547373, 0), V(3.672093, 10.532565, 0), V(3.86154, 10.524279, 0), V(3.991739, 10.523486, 0), V(4.058774, 10.523077, 0)], [4, 1, 1, 1, 1, 1, 1, 1, 1, 1, 1, 1, 1, 1, 1, 1, 1, 1, 1, 1, 1, 1, 1, 1, 4], [0, 0.917197984, 1.796777363, 2.643741708, 3.473481078, 4.273990801, 5.068160217, 5.848535553, 6.620952589, 7.401027954, 8.190319769, 9.003592045, 9.831693788, 10.683727512, 11.569696396, 12.49373307, 13.453184301, 14.474457586, 15.568383184, 16.750575061, 18.019320986, 19.375517054, 20.823796471, 22.364701649, 24], False, 3, [1, 1, 1, 1, 1, 1, 1, 1, 1, 1, 1, 1, 1, 1, 1, 1, 1, 1, 1, 1, 1, 1, 1, 1, 1, 1, 1], False), False)
sketch3.addGeometry(Part.BSplineCurve([V(4.098317, 13.376923, 0), V(4.030441, 13.376522, 0), V(3.898557, 13.375743, 0), V(3.706601, 13.367345, 0), V(3.52621, 13.352885, 0), V(3.357404, 13.334248, 0), V(3.200269, 13.30872, 0), V(3.054403, 13.27882, 0), V(2.919849, 13.243303, 0), V(2.796942, 13.200378, 0), V(2.683591, 13.154338, 0), V(2.578945, 13.103209, 0), V(2.481123, 13.050067, 0), V(2.39149, 12.991693, 0), V(2.309847, 12.929326, 0), V(2.235444, 12.863945, 0), V(2.169307, 12.794157, 0), V(2.110069, 12.721006, 0), V(2.058217, 12.642715, 0), V(2.013668, 12.559627, 0), V(1.976853, 12.471182, 0), V(1.945121, 12.378667, 0), V(1.922291, 12.280436, 0), V(1.904191, 12.178005, 0), V(1.894185, 12.070232, 0), V(1.892944, 11.996854, 0), V(1.892308, 11.959255, 0)], [4, 1, 1, 1, 1, 1, 1, 1, 1, 1, 1, 1, 1, 1, 1, 1, 1, 1, 1, 1, 1, 1, 1, 1, 4], [0, 1.643682949, 3.193646483, 4.651618242, 6.025629174, 7.305184366, 8.505292942, 9.630500342, 10.672179876, 11.655924581, 12.591484594, 13.491256898, 14.350247848, 15.17884557, 15.977481787, 16.746098769, 17.504475725, 18.254166354, 19.016819136, 19.783753977, 20.571954997, 21.382401421, 22.223156612, 23.089526058, 24], False, 3, [1, 1, 1, 1, 1, 1, 1, 1, 1, 1, 1, 1, 1, 1, 1, 1, 1, 1, 1, 1, 1, 1, 1, 1, 1, 1, 1], False), False)
sketch3.addGeometry(Part.BSplineCurve([V(4.098317, 12.623077, 0), V(4.164518, 12.6228, 0), V(4.291942, 12.622267, 0), V(4.474875, 12.612484, 0), V(4.641954, 12.598861, 0), V(4.792806, 12.578934, 0), V(4.927797, 12.553294, 0), V(5.046918, 12.521693, 0), V(5.150406, 12.484439, 0), V(5.238148, 12.440254, 0), V(5.312743, 12.391337, 0), V(5.376651, 12.339343, 0), V(5.431671, 12.284183, 0), V(5.476267, 12.225262, 0), V(5.511811, 12.162974, 0), V(5.536033, 12.096981, 0), V(5.550934, 12.027505, 0), V(5.552862, 11.980084, 0), V(5.553846, 11.955889, 0)], [4, 1, 1, 1, 1, 1, 1, 1, 1, 1, 1, 1, 1, 1, 1, 1, 4], [0, 1.793903324, 3.452957663, 4.963427329, 6.336122014, 7.574844885, 8.684777121, 9.673127442, 10.55010789, 11.340650774, 12.086136756, 12.779466299, 13.446812155, 14.083183996, 14.715685896, 15.34475337, 16], False, 3, [1, 1, 1, 1, 1, 1, 1, 1, 1, 1, 1, 1, 1, 1, 1, 1, 1, 1, 1], False), False)
sketch3.addGeometry(Part.BSplineCurve([V(2.934736, 12.416106, 0), V(2.965802, 12.433097, 0), V(3.030947, 12.468727, 0), V(3.140898, 12.509853, 0), V(3.264748, 12.544936, 0), V(3.403499, 12.57306, 0), V(3.556594, 12.595336, 0), V(3.724147, 12.612367, 0), V(3.906398, 12.621017, 0), V(4.032685, 12.622372, 0), V(4.098317, 12.623077, 0)], [4, 1, 1, 1, 1, 1, 1, 1, 4], [0, 0.710996797, 1.490902623, 2.352723643, 3.296875318, 4.334065587, 5.461510359, 6.680713396, 8], False, 3, [1, 1, 1, 1, 1, 1, 1, 1, 1, 1, 1], False), False)
sketch3.addGeometry(Part.BSplineCurve([V(2.646154, 11.955889, 0), V(2.646852, 11.979517, 0), V(2.64822, 12.025775, 0), V(2.662258, 12.093231, 0), V(2.68508, 12.157022, 0), V(2.717364, 12.216956, 0), V(2.758418, 12.273247, 0), V(2.808423, 12.325619, 0), V(2.867876, 12.373679, 0), V(2.912, 12.401678, 0), V(2.934736, 12.416106, 0)], [4, 1, 1, 1, 1, 1, 1, 1, 4], [0, 0.992283464, 1.942767638, 2.88273346, 3.832339453, 4.79467288, 5.803907806, 6.868395428, 8], False, 3, [1, 1, 1, 1, 1, 1, 1, 1, 1, 1, 1], False), False)
sketch3.addGeometry(Part.BSplineCurve([V(4.050361, 11.276923, 0), V(3.986412, 11.277691, 0), V(3.863787, 11.279163, 0), V(3.687454, 11.286902, 0), V(3.526955, 11.302324, 0), V(3.381299, 11.321757, 0), V(3.251039, 11.34823, 0), V(3.136135, 11.381193, 0), V(3.035736, 11.417746, 0), V(2.95132, 11.463577, 0), V(2.879126, 11.512681, 0), V(2.816674, 11.565092, 0), V(2.764652, 11.621723, 0), V(2.720486, 11.680883, 0), V(2.68769, 11.744765, 0), V(2.66378, 11.812059, 0), V(2.649202, 11.882914, 0), V(2.647176, 11.931424, 0), V(2.646154, 11.955889, 0)], [4, 1, 1, 1, 1, 1, 1, 1, 1, 1, 1, 1, 1, 1, 1, 1, 4], [0, 1.772047989, 3.398033405, 4.888860297, 6.238411839, 7.468309579, 8.567754056, 9.549141588, 10.421774021, 11.221426488, 11.965694757, 12.675067502, 13.348095901, 14.005005053, 14.656328889, 15.322321954, 16], False, 3, [1, 1, 1, 1, 1, 1, 1, 1, 1, 1, 1, 1, 1, 1, 1, 1, 1, 1, 1], False), False)
sketch3.addGeometry(Part.BSplineCurve([V(5.553846, 11.955889, 0), V(5.552271, 11.922909, 0), V(5.549182, 11.85825, 0), V(5.523402, 11.764568, 0), V(5.482717, 11.676627, 0), V(5.434761, 11.609308, 0), V(5.387974, 11.559148, 0), V(5.346933, 11.522794, 0), V(5.298933, 11.490235, 0), V(5.246047, 11.45882, 0), V(5.186822, 11.430869, 0), V(5.12275, 11.403076, 0), V(5.051692, 11.380433, 0), V(4.974988, 11.358133, 0), V(4.890475, 11.338637, 0), V(4.797489, 11.32218, 0), V(4.695329, 11.307989, 0), V(4.584245, 11.296006, 0), V(4.463794, 11.288388, 0), V(4.334255, 11.281015, 0), V(4.195362, 11.278331, 0), V(4.099719, 11.277402, 0), V(4.050361, 11.276923, 0)], [4, 1, 1, 1, 1, 1, 1, 1, 1, 1, 1, 1, 1, 1, 1, 1, 1, 1, 1, 1, 4], [0, 1.076821401, 2.111141558, 3.153197101, 4.23200803, 4.796476379, 5.394298193, 6.020090776, 6.690078086, 7.403703365, 8.159894791, 8.971856079, 9.83973388, 10.771758647, 11.806038152, 12.926526118, 14.143777411, 15.458313878, 16.872423957, 18.385946227, 20], False, 3, [1, 1, 1, 1, 1, 1, 1, 1, 1, 1, 1, 1, 1, 1, 1, 1, 1, 1, 1, 1, 1, 1, 1], False), False)
sketch3.addConstraint(Sketcher.Constraint("Block", 1))
sketch3.addConstraint(Sketcher.Constraint("Block", 2))
sketch3.addConstraint(Sketcher.Constraint("Block", 3))
sketch3.addConstraint(Sketcher.Constraint("Block", 5))
sketch3.addConstraint(Sketcher.Constraint("Block", 6))
sketch3.addConstraint(Sketcher.Constraint("Block", 7))
sketch3.addConstraint(Sketcher.Constraint("Block", 9))
sketch3.addConstraint(Sketcher.Constraint("Block", 10))
sketch3.addConstraint(Sketcher.Constraint("Block", 11))
sketch3.addConstraint(Sketcher.Constraint("Block", 12))
sketch3.addConstraint(Sketcher.Constraint("Block", 13))
sketch3.addConstraint(Sketcher.Constraint("Block", 14))
sketch3.addConstraint(Sketcher.Constraint("Block", 15))
sketch3.addConstraint(Sketcher.Constraint("Block", 16))
sketch3.addConstraint(Sketcher.Constraint("Block", 17))
sketch3.addConstraint(Sketcher.Constraint("Block", 18))
sketch3.addConstraint(Sketcher.Constraint("Block", 19))
sketch3.addConstraint(Sketcher.Constraint("Block", 20))
sketch3.addConstraint(Sketcher.Constraint("Block", 21))
sketch3.addConstraint(Sketcher.Constraint("Block", 22))
sketch3.addConstraint(Sketcher.Constraint("Block", 23))
sketch3.addConstraint(Sketcher.Constraint("Block", 24))
sketch3.addConstraint(Sketcher.Constraint("Block", 25))
sketch3.addConstraint(Sketcher.Constraint("Block", 26))
sketch3.addConstraint(Sketcher.Constraint("Block", 27))
sketch3.addConstraint(Sketcher.Constraint("Block", 28))
sketch3.addConstraint(Sketcher.Constraint("Block", 29))
sketch3.addConstraint(Sketcher.Constraint("Coincident", 0, 2, 1, 2))
sketch3.addConstraint(Sketcher.Constraint("Coincident", 3, 1, 4, 1))
sketch3.addConstraint(Sketcher.Constraint("Coincident", 4, 2, 5, 2))
sketch3.addConstraint(Sketcher.Constraint("Coincident", 7, 1, 8, 1))
sketch3.addConstraint(Sketcher.Constraint("Coincident", 8, 2, 9, 2))
sketch3.addConstraint(Sketcher.Constraint("Coincident", 15, 1, 0, 1))
pocket2 = body.newObject("PartDesign::Pocket", "Pocket001")
pocket2.Profile = sketch3
pocket2.setExpression("Length", "Params.pocket2_length")
pocket2.Reversed = True

# Sketch on XZ plane
sketch4 = body.newObject("Sketcher::SketchObject", "Sketch003")
sketch4.AttachmentSupport = (doc.getObject("XZ_Plane"), [""])
sketch4.MapMode = "FlatFace"
add_polygon(sketch4, [(2, 18), (2, 2), (8, 2), (8, 18)])  # lines 0-3
sketch4.addConstraint(Sketcher.Constraint("Vertical", 0))
sketch4.addConstraint(Sketcher.Constraint("Horizontal", 1))
sketch4.addConstraint(Sketcher.Constraint("Vertical", 2))
sketch4.addConstraint(Sketcher.Constraint("Horizontal", 3))
sketch4.addConstraint(Sketcher.Constraint("DistanceX", 1, 1, 1, 2, Q("6 mm")))
sketch4.addConstraint(Sketcher.Constraint("DistanceY", 0, 2, 0, 1, Q("16 mm")))
sketch4.addConstraint(Sketcher.Constraint("DistanceX", -1, 1, 0, 2, Q("1.5 mm")))
sketch4.addConstraint(Sketcher.Constraint("DistanceY", -1, 1, 0, 2, Q("1.5 mm")))
sketch4.setExpression("Constraints[8]", "Params.sketch4_width")
sketch4.setExpression("Constraints[9]", "Params.sketch4_height")
pocket3 = body.newObject("PartDesign::Pocket", "Pocket002")
pocket3.Profile = sketch4
pocket3.setExpression("Length", "Params.pocket3_length")

doc.recompute()
